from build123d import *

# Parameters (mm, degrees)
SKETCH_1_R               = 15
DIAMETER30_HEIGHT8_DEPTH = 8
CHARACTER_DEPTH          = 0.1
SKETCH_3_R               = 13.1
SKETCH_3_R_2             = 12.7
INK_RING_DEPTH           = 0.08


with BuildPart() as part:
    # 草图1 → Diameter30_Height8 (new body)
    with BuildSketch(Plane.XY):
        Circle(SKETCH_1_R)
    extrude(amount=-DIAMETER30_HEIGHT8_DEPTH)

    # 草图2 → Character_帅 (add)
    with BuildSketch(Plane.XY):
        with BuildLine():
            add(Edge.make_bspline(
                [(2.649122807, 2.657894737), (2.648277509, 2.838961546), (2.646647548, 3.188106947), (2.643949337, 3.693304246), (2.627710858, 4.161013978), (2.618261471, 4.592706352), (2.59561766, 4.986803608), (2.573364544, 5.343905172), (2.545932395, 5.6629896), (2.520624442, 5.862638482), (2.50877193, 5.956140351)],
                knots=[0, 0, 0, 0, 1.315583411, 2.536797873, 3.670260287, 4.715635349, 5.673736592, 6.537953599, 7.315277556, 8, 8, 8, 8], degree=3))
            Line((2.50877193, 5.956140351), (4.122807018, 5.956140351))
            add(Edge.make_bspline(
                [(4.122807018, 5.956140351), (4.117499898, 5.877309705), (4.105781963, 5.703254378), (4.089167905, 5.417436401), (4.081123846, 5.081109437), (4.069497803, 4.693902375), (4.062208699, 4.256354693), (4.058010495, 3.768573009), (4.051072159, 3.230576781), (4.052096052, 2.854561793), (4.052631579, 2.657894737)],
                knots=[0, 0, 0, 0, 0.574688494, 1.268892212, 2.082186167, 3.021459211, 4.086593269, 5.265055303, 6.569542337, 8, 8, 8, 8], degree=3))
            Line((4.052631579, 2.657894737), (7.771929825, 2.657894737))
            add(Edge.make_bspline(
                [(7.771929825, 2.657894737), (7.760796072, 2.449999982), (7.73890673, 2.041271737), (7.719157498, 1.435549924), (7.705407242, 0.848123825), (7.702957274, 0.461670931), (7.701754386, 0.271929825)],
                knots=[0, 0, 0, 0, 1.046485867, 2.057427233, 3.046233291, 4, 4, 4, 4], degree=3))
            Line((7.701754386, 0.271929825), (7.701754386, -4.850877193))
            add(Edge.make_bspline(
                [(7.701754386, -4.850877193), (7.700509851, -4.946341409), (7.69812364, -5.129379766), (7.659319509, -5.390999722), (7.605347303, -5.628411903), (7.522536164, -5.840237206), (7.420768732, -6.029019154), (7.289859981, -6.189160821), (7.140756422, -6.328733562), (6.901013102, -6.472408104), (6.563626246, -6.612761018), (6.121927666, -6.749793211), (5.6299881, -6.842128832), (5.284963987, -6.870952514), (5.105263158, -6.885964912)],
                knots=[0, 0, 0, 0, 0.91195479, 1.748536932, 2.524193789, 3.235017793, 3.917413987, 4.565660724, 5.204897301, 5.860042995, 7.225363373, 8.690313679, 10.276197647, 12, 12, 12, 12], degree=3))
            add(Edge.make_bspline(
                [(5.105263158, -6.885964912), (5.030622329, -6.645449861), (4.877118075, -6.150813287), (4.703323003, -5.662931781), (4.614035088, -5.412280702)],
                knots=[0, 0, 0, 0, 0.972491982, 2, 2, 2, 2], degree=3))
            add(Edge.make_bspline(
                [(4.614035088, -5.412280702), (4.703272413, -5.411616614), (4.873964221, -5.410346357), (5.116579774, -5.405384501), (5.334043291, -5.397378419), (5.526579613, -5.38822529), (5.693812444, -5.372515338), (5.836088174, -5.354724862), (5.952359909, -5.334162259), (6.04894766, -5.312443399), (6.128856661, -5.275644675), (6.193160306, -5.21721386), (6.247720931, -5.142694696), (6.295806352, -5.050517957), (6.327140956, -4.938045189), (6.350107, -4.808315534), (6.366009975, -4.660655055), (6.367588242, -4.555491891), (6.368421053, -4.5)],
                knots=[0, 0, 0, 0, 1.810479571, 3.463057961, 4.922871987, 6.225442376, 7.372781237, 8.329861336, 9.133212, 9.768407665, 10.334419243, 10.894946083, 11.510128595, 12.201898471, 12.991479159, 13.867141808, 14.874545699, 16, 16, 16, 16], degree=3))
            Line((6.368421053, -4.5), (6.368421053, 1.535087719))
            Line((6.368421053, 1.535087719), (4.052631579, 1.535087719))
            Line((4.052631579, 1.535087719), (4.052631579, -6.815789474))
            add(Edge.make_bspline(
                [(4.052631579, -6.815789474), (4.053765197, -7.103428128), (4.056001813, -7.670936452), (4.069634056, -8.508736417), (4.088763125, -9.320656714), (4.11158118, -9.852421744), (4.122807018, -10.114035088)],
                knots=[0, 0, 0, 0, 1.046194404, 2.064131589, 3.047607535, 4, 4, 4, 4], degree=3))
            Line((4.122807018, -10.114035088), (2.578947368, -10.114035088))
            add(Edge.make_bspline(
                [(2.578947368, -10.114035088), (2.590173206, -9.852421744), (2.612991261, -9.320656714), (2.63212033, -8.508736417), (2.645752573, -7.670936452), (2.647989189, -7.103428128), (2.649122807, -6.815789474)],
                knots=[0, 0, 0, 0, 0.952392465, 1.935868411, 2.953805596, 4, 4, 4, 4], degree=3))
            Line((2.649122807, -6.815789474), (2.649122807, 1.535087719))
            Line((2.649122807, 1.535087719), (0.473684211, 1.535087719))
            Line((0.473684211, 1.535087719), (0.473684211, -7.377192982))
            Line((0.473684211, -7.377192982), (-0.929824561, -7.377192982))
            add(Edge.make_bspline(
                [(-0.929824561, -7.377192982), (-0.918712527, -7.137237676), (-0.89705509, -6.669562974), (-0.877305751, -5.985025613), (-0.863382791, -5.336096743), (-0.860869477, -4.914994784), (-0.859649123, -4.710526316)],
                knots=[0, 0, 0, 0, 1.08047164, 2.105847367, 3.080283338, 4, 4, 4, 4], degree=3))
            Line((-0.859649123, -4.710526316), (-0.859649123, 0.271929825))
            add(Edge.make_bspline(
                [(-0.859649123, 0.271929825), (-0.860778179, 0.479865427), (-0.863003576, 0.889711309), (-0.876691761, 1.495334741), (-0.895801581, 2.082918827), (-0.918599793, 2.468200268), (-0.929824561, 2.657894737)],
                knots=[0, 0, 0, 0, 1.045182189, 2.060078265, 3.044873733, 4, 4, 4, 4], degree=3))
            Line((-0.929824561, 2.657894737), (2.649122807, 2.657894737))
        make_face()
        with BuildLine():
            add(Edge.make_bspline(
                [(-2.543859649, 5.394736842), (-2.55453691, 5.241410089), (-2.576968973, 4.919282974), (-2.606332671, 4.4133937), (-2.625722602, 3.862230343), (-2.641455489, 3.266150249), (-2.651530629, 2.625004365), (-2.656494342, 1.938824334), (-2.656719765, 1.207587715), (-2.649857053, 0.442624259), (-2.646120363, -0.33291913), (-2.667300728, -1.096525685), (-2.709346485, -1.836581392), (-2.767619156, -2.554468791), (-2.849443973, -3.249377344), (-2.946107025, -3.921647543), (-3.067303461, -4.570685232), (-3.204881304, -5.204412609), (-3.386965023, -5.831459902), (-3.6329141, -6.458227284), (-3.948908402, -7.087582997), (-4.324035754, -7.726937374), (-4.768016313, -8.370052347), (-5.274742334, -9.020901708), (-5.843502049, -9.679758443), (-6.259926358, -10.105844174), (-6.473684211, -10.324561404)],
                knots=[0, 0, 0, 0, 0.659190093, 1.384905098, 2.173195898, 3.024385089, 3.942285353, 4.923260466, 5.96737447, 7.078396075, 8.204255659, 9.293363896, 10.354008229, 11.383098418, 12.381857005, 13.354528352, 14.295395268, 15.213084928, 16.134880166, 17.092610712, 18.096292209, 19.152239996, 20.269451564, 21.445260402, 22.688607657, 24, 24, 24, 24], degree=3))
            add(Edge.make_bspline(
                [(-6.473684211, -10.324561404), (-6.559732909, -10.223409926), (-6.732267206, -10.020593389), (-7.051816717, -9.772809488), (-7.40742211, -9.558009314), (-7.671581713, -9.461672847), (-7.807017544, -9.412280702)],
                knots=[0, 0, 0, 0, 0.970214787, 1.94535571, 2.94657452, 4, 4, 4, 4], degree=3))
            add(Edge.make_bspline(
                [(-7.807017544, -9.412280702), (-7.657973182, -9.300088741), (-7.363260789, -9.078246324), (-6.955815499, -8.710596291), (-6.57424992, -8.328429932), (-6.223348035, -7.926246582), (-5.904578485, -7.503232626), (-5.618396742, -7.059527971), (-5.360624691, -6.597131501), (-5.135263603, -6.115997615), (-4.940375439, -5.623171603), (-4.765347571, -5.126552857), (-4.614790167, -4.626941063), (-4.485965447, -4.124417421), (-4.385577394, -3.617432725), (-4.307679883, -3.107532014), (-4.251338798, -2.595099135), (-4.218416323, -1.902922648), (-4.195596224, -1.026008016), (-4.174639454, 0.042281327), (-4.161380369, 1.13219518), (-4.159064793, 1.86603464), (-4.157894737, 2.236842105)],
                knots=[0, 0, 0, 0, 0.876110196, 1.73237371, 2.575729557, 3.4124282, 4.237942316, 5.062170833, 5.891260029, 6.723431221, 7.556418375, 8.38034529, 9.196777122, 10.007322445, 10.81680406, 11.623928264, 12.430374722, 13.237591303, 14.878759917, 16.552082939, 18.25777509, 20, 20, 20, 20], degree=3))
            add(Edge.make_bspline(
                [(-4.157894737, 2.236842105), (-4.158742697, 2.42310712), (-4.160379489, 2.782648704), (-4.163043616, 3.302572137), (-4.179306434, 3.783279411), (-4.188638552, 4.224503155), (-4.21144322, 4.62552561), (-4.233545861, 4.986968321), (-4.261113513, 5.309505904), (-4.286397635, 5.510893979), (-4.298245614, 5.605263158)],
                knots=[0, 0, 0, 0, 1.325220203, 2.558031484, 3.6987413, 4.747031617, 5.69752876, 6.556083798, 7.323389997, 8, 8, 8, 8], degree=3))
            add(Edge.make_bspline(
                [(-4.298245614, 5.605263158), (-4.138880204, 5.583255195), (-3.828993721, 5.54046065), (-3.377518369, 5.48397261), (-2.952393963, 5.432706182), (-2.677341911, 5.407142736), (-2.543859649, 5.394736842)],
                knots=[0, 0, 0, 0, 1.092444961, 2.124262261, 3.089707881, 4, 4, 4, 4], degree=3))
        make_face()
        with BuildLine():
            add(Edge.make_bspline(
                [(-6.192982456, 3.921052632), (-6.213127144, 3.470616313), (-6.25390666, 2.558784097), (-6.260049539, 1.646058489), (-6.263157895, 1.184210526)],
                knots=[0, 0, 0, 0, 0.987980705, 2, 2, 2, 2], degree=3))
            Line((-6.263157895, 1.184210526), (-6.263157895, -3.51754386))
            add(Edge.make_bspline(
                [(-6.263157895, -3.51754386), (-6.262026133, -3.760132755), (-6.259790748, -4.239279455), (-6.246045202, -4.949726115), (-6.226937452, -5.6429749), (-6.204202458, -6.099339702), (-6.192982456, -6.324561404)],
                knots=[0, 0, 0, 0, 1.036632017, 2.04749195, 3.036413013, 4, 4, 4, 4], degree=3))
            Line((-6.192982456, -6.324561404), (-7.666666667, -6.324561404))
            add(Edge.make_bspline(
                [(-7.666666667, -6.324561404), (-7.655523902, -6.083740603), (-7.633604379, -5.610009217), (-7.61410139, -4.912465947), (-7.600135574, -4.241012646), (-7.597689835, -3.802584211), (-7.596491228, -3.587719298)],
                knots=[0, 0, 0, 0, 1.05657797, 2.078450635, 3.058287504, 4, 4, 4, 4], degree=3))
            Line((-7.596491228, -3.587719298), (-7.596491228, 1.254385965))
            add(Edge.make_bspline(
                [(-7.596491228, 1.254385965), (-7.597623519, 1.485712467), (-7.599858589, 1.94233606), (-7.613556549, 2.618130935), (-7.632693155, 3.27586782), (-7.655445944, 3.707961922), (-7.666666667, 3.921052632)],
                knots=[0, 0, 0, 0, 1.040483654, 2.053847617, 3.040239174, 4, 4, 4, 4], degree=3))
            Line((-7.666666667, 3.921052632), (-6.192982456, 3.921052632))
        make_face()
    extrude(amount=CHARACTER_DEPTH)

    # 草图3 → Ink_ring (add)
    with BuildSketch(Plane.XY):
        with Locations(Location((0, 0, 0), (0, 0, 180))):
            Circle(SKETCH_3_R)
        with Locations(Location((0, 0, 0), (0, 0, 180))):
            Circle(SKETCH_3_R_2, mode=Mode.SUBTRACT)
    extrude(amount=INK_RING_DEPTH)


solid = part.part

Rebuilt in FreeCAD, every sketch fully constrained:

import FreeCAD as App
import Part
import Sketcher

doc = App.newDocument("Part")
body = doc.addObject("PartDesign::Body", "Body")

# Sketch on XY plane
sketch1 = doc.addObject("Sketcher::SketchObject", "Sketch")
body.addObject(sketch1)
sketch1.AttachmentSupport = (doc.XY_Plane, [""])
sketch1.MapMode = "FlatFace"
sketch1.addGeometry(Part.Circle(App.Vector(0, 0, 0), App.Vector(0, 0, 1), 15), False)
sketch1.addConstraint([
    Sketcher.Constraint("Coincident", 0, 3, -1, 1),
    Sketcher.Constraint("Diameter", 0, 30.0),
])
pad1 = doc.addObject("PartDesign::Pad", "Pad")
body.addObject(pad1)
pad1.Profile = sketch1
pad1.Length = 8
pad1.Reversed = True

# Sketch on XY plane
sketch2 = doc.addObject("Sketcher::SketchObject", "Sketch001")
body.addObject(sketch2)
sketch2.AttachmentSupport = (doc.XY_Plane, [""])
sketch2.MapMode = "FlatFace"
sketch2.addGeometry([
    Part.BSplineCurve([App.Vector(2.649123, 2.657895, 0), App.Vector(2.648278, 2.838962, 0), App.Vector(2.646648, 3.188107, 0), App.Vector(2.643949, 3.693304, 0), App.Vector(2.627711, 4.161014, 0), App.Vector(2.618261, 4.592706, 0), App.Vector(2.595618, 4.986804, 0), App.Vector(2.573365, 5.343905, 0), App.Vector(2.545932, 5.66299, 0), App.Vector(2.520624, 5.862638, 0), App.Vector(2.508772, 5.95614, 0)], [4, 1, 1, 1, 1, 1, 1, 1, 4], [0, 1.315583411, 2.536797873, 3.670260287, 4.715635349, 5.673736592, 6.537953599, 7.315277556, 8], False, 3, [1, 1, 1, 1, 1, 1, 1, 1, 1, 1, 1], False),  # 0
    Part.LineSegment(App.Vector(2.649123, 2.657895, 0), App.Vector(-0.929825, 2.657895, 0)),  # 1
    Part.BSplineCurve([App.Vector(-0.859649, 0.27193, 0), App.Vector(-0.860778, 0.479865, 0), App.Vector(-0.863004, 0.889711, 0), App.Vector(-0.876692, 1.495335, 0), App.Vector(-0.895802, 2.082919, 0), App.Vector(-0.9186, 2.4682, 0), App.Vector(-0.929825, 2.657895, 0)], [4, 1, 1, 1, 4], [0, 1.045182189, 2.060078265, 3.044873733, 4], False, 3, [1, 1, 1, 1, 1, 1, 1], False),  # 2
    Part.LineSegment(App.Vector(-0.859649, 0.27193, 0), App.Vector(-0.859649, -4.710526, 0)),  # 3
    Part.BSplineCurve([App.Vector(-0.929825, -7.377193, 0), App.Vector(-0.918713, -7.137238, 0), App.Vector(-0.897055, -6.669563, 0), App.Vector(-0.877306, -5.985026, 0), App.Vector(-0.863383, -5.336097, 0), App.Vector(-0.860869, -4.914995, 0), App.Vector(-0.859649, -4.710526, 0)], [4, 1, 1, 1, 4], [0, 1.08047164, 2.105847367, 3.080283338, 4], False, 3, [1, 1, 1, 1, 1, 1, 1], False),  # 4
    Part.LineSegment(App.Vector(-0.929825, -7.377193, 0), App.Vector(0.473684, -7.377193, 0)),  # 5
    Part.LineSegment(App.Vector(0.473684, -7.377193, 0), App.Vector(0.473684, 1.535088, 0)),  # 6
    Part.LineSegment(App.Vector(0.473684, 1.535088, 0), App.Vector(2.649123, 1.535088, 0)),  # 7
    Part.LineSegment(App.Vector(2.649123, 1.535088, 0), App.Vector(2.649123, -6.815789, 0)),  # 8
    Part.BSplineCurve([App.Vector(2.578947, -10.114035, 0), App.Vector(2.590173, -9.852422, 0), App.Vector(2.612991, -9.320657, 0), App.Vector(2.63212, -8.508736, 0), App.Vector(2.645753, -7.670936, 0), App.Vector(2.647989, -7.103428, 0), App.Vector(2.649123, -6.815789, 0)], [4, 1, 1, 1, 4], [0, 0.952392465, 1.935868411, 2.953805596, 4], False, 3, [1, 1, 1, 1, 1, 1, 1], False),  # 9
    Part.LineSegment(App.Vector(2.578947, -10.114035, 0), App.Vector(4.122807, -10.114035, 0)),  # 10
    Part.BSplineCurve([App.Vector(4.052632, -6.815789, 0), App.Vector(4.053765, -7.103428, 0), App.Vector(4.056002, -7.670936, 0), App.Vector(4.069634, -8.508736, 0), App.Vector(4.088763, -9.320657, 0), App.Vector(4.111581, -9.852422, 0), App.Vector(4.122807, -10.114035, 0)], [4, 1, 1, 1, 4], [0, 1.046194404, 2.064131589, 3.047607535, 4], False, 3, [1, 1, 1, 1, 1, 1, 1], False),  # 11
    Part.LineSegment(App.Vector(4.052632, -6.815789, 0), App.Vector(4.052632, 1.535088, 0)),  # 12
    Part.LineSegment(App.Vector(4.052632, 1.535088, 0), App.Vector(6.368421, 1.535088, 0)),  # 13
    Part.LineSegment(App.Vector(6.368421, 1.535088, 0), App.Vector(6.368421, -4.5, 0)),  # 14
    Part.BSplineCurve([App.Vector(4.614035, -5.412281, 0), App.Vector(4.703272, -5.411617, 0), App.Vector(4.873964, -5.410346, 0), App.Vector(5.11658, -5.405385, 0), App.Vector(5.334043, -5.397378, 0), App.Vector(5.52658, -5.388225, 0), App.Vector(5.693812, -5.372515, 0), App.Vector(5.836088, -5.354725, 0), App.Vector(5.95236, -5.334162, 0), App.Vector(6.048948, -5.312443, 0), App.Vector(6.128857, -5.275645, 0), App.Vector(6.19316, -5.217214, 0), App.Vector(6.247721, -5.142695, 0), App.Vector(6.295806, -5.050518, 0), App.Vector(6.327141, -4.938045, 0), App.Vector(6.350107, -4.808316, 0), App.Vector(6.36601, -4.660655, 0), App.Vector(6.367588, -4.555492, 0), App.Vector(6.368421, -4.5, 0)], [4, 1, 1, 1, 1, 1, 1, 1, 1, 1, 1, 1, 1, 1, 1, 1, 4], [0, 1.810479571, 3.463057961, 4.922871987, 6.225442376, 7.372781237, 8.329861336, 9.133212, 9.768407665, 10.334419243, 10.894946083, 11.510128595, 12.201898471, 12.991479159, 13.867141808, 14.874545699, 16], False, 3, [1, 1, 1, 1, 1, 1, 1, 1, 1, 1, 1, 1, 1, 1, 1, 1, 1, 1, 1], False),  # 15
    Part.BSplineCurve([App.Vector(5.105263, -6.885965, 0), App.Vector(5.030622, -6.64545, 0), App.Vector(4.877118, -6.150813, 0), App.Vector(4.703323, -5.662932, 0), App.Vector(4.614035, -5.412281, 0)], [4, 1, 4], [0, 0.972491982, 2], False, 3, [1, 1, 1, 1, 1], False),  # 16
    Part.BSplineCurve([App.Vector(7.701754, -4.850877, 0), App.Vector(7.70051, -4.946341, 0), App.Vector(7.698124, -5.12938, 0), App.Vector(7.65932, -5.391, 0), App.Vector(7.605347, -5.628412, 0), App.Vector(7.522536, -5.840237, 0), App.Vector(7.420769, -6.029019, 0), App.Vector(7.28986, -6.189161, 0), App.Vector(7.140756, -6.328734, 0), App.Vector(6.901013, -6.472408, 0), App.Vector(6.563626, -6.612761, 0), App.Vector(6.121928, -6.749793, 0), App.Vector(5.629988, -6.842129, 0), App.Vector(5.284964, -6.870953, 0), App.Vector(5.105263, -6.885965, 0)], [4, 1, 1, 1, 1, 1, 1, 1, 1, 1, 1, 1, 4], [0, 0.91195479, 1.748536932, 2.524193789, 3.235017793, 3.917413987, 4.565660724, 5.204897301, 5.860042995, 7.225363373, 8.690313679, 10.276197647, 12], False, 3, [1, 1, 1, 1, 1, 1, 1, 1, 1, 1, 1, 1, 1, 1, 1], False),  # 17
    Part.LineSegment(App.Vector(7.701754, -4.850877, 0), App.Vector(7.701754, 0.27193, 0)),  # 18
    Part.BSplineCurve([App.Vector(7.77193, 2.657895, 0), App.Vector(7.760796, 2.45, 0), App.Vector(7.738907, 2.041272, 0), App.Vector(7.719157, 1.43555, 0), App.Vector(7.705407, 0.848124, 0), App.Vector(7.702957, 0.461671, 0), App.Vector(7.701754, 0.27193, 0)], [4, 1, 1, 1, 4], [0, 1.046485867, 2.057427233, 3.046233291, 4], False, 3, [1, 1, 1, 1, 1, 1, 1], False),  # 19
    Part.LineSegment(App.Vector(7.77193, 2.657895, 0), App.Vector(4.052632, 2.657895, 0)),  # 20
    Part.BSplineCurve([App.Vector(4.122807, 5.95614, 0), App.Vector(4.1175, 5.87731, 0), App.Vector(4.105782, 5.703254, 0), App.Vector(4.089168, 5.417436, 0), App.Vector(4.081124, 5.081109, 0), App.Vector(4.069498, 4.693902, 0), App.Vector(4.062209, 4.256355, 0), App.Vector(4.05801, 3.768573, 0), App.Vector(4.051072, 3.230577, 0), App.Vector(4.052096, 2.854562, 0), App.Vector(4.052632, 2.657895, 0)], [4, 1, 1, 1, 1, 1, 1, 1, 4], [0, 0.574688494, 1.268892212, 2.082186167, 3.021459211, 4.086593269, 5.265055303, 6.569542337, 8], False, 3, [1, 1, 1, 1, 1, 1, 1, 1, 1, 1, 1], False),  # 21
    Part.LineSegment(App.Vector(4.122807, 5.95614, 0), App.Vector(2.508772, 5.95614, 0)),  # 22
    Part.BSplineCurve([App.Vector(-2.54386, 5.394737, 0), App.Vector(-2.554537, 5.24141, 0), App.Vector(-2.576969, 4.919283, 0), App.Vector(-2.606333, 4.413394, 0), App.Vector(-2.625723, 3.86223, 0), App.Vector(-2.641455, 3.26615, 0), App.Vector(-2.651531, 2.625004, 0), App.Vector(-2.656494, 1.938824, 0), App.Vector(-2.65672, 1.207588, 0), App.Vector(-2.649857, 0.442624, 0), App.Vector(-2.64612, -0.332919, 0), App.Vector(-2.667301, -1.096526, 0), App.Vector(-2.709346, -1.836581, 0), App.Vector(-2.767619, -2.554469, 0), App.Vector(-2.849444, -3.249377, 0), App.Vector(-2.946107, -3.921648, 0), App.Vector(-3.067303, -4.570685, 0), App.Vector(-3.204881, -5.204413, 0), App.Vector(-3.386965, -5.83146, 0), App.Vector(-3.632914, -6.458227, 0), App.Vector(-3.948908, -7.087583, 0), App.Vector(-4.324036, -7.726937, 0), App.Vector(-4.768016, -8.370052, 0), App.Vector(-5.274742, -9.020902, 0), App.Vector(-5.843502, -9.679758, 0), App.Vector(-6.259926, -10.105844, 0), App.Vector(-6.473684, -10.324561, 0)], [4, 1, 1, 1, 1, 1, 1, 1, 1, 1, 1, 1, 1, 1, 1, 1, 1, 1, 1, 1, 1, 1, 1, 1, 4], [0, 0.659190093, 1.384905098, 2.173195898, 3.024385089, 3.942285353, 4.923260466, 5.96737447, 7.078396075, 8.204255659, 9.293363896, 10.354008229, 11.383098418, 12.381857005, 13.354528352, 14.295395268, 15.213084928, 16.134880166, 17.092610712, 18.096292209, 19.152239996, 20.269451564, 21.445260402, 22.688607657, 24], False, 3, [1, 1, 1, 1, 1, 1, 1, 1, 1, 1, 1, 1, 1, 1, 1, 1, 1, 1, 1, 1, 1, 1, 1, 1, 1, 1, 1], False),  # 23
    Part.BSplineCurve([App.Vector(-4.298246, 5.605263, 0), App.Vector(-4.13888, 5.583255, 0), App.Vector(-3.828994, 5.540461, 0), App.Vector(-3.377518, 5.483973, 0), App.Vector(-2.952394, 5.432706, 0), App.Vector(-2.677342, 5.407143, 0), App.Vector(-2.54386, 5.394737, 0)], [4, 1, 1, 1, 4], [0, 1.092444961, 2.124262261, 3.089707881, 4], False, 3, [1, 1, 1, 1, 1, 1, 1], False),  # 24
    Part.BSplineCurve([App.Vector(-4.157895, 2.236842, 0), App.Vector(-4.158743, 2.423107, 0), App.Vector(-4.160379, 2.782649, 0), App.Vector(-4.163044, 3.302572, 0), App.Vector(-4.179306, 3.783279, 0), App.Vector(-4.188639, 4.224503, 0), App.Vector(-4.211443, 4.625526, 0), App.Vector(-4.233546, 4.986968, 0), App.Vector(-4.261114, 5.309506, 0), App.Vector(-4.286398, 5.510894, 0), App.Vector(-4.298246, 5.605263, 0)], [4, 1, 1, 1, 1, 1, 1, 1, 4], [0, 1.325220203, 2.558031484, 3.6987413, 4.747031617, 5.69752876, 6.556083798, 7.323389997, 8], False, 3, [1, 1, 1, 1, 1, 1, 1, 1, 1, 1, 1], False),  # 25
    Part.BSplineCurve([App.Vector(-7.807018, -9.412281, 0), App.Vector(-7.657973, -9.300089, 0), App.Vector(-7.363261, -9.078246, 0), App.Vector(-6.955815, -8.710596, 0), App.Vector(-6.57425, -8.32843, 0), App.Vector(-6.223348, -7.926247, 0), App.Vector(-5.904578, -7.503233, 0), App.Vector(-5.618397, -7.059528, 0), App.Vector(-5.360625, -6.597132, 0), App.Vector(-5.135264, -6.115998, 0), App.Vector(-4.940375, -5.623172, 0), App.Vector(-4.765348, -5.126553, 0), App.Vector(-4.61479, -4.626941, 0), App.Vector(-4.485965, -4.124417, 0), App.Vector(-4.385577, -3.617433, 0), App.Vector(-4.30768, -3.107532, 0), App.Vector(-4.251339, -2.595099, 0), App.Vector(-4.218416, -1.902923, 0), App.Vector(-4.195596, -1.026008, 0), App.Vector(-4.174639, 0.042281, 0), App.Vector(-4.16138, 1.132195, 0), App.Vector(-4.159065, 1.866035, 0), App.Vector(-4.157895, 2.236842, 0)], [4, 1, 1, 1, 1, 1, 1, 1, 1, 1, 1, 1, 1, 1, 1, 1, 1, 1, 1, 1, 4], [0, 0.876110196, 1.73237371, 2.575729557, 3.4124282, 4.237942316, 5.062170833, 5.891260029, 6.723431221, 7.556418375, 8.38034529, 9.196777122, 10.007322445, 10.81680406, 11.623928264, 12.430374722, 13.237591303, 14.878759917, 16.552082939, 18.25777509, 20], False, 3, [1, 1, 1, 1, 1, 1, 1, 1, 1, 1, 1, 1, 1, 1, 1, 1, 1, 1, 1, 1, 1, 1, 1], False),  # 26
    Part.BSplineCurve([App.Vector(-6.473684, -10.324561, 0), App.Vector(-6.559733, -10.22341, 0), App.Vector(-6.732267, -10.020593, 0), App.Vector(-7.051817, -9.772809, 0), App.Vector(-7.407422, -9.558009, 0), App.Vector(-7.671582, -9.461673, 0), App.Vector(-7.807018, -9.412281, 0)], [4, 1, 1, 1, 4], [0, 0.970214787, 1.94535571, 2.94657452, 4], False, 3, [1, 1, 1, 1, 1, 1, 1], False),  # 27
    Part.BSplineCurve([App.Vector(-6.192982, 3.921053, 0), App.Vector(-6.213127, 3.470616, 0), App.Vector(-6.253907, 2.558784, 0), App.Vector(-6.26005, 1.646058, 0), App.Vector(-6.263158, 1.184211, 0)], [4, 1, 4], [0, 0.987980705, 2], False, 3, [1, 1, 1, 1, 1], False),  # 28
    Part.LineSegment(App.Vector(-6.192982, 3.921053, 0), App.Vector(-7.666667, 3.921053, 0)),  # 29
    Part.BSplineCurve([App.Vector(-7.596491, 1.254386, 0), App.Vector(-7.597624, 1.485712, 0), App.Vector(-7.599859, 1.942336, 0), App.Vector(-7.613557, 2.618131, 0), App.Vector(-7.632693, 3.275868, 0), App.Vector(-7.655446, 3.707962, 0), App.Vector(-7.666667, 3.921053, 0)], [4, 1, 1, 1, 4], [0, 1.040483654, 2.053847617, 3.040239174, 4], False, 3, [1, 1, 1, 1, 1, 1, 1], False),  # 30
    Part.LineSegment(App.Vector(-7.596491, 1.254386, 0), App.Vector(-7.596491, -3.587719, 0)),  # 31
    Part.BSplineCurve([App.Vector(-7.666667, -6.324561, 0), App.Vector(-7.655524, -6.083741, 0), App.Vector(-7.633604, -5.610009, 0), App.Vector(-7.614101, -4.912466, 0), App.Vector(-7.600136, -4.241013, 0), App.Vector(-7.59769, -3.802584, 0), App.Vector(-7.596491, -3.587719, 0)], [4, 1, 1, 1, 4], [0, 1.05657797, 2.078450635, 3.058287504, 4], False, 3, [1, 1, 1, 1, 1, 1, 1], False),  # 32
    Part.LineSegment(App.Vector(-7.666667, -6.324561, 0), App.Vector(-6.192982, -6.324561, 0)),  # 33
    Part.BSplineCurve([App.Vector(-6.263158, -3.517544, 0), App.Vector(-6.262026, -3.760133, 0), App.Vector(-6.259791, -4.239279, 0), App.Vector(-6.246045, -4.949726, 0), App.Vector(-6.226937, -5.642975, 0), App.Vector(-6.204202, -6.09934, 0), App.Vector(-6.192982, -6.324561, 0)], [4, 1, 1, 1, 4], [0, 1.036632017, 2.04749195, 3.036413013, 4], False, 3, [1, 1, 1, 1, 1, 1, 1], False),  # 34
    Part.LineSegment(App.Vector(-6.263158, -3.517544, 0), App.Vector(-6.263158, 1.184211, 0)),  # 35
], False)
sketch2.addConstraint([
    Sketcher.Constraint("Block", 0),
    Sketcher.Constraint("Block", 2),
    Sketcher.Constraint("Block", 4),
    Sketcher.Constraint("Block", 9),
    Sketcher.Constraint("Block", 11),
    Sketcher.Constraint("Block", 15),
    Sketcher.Constraint("Block", 16),
    Sketcher.Constraint("Block", 17),
    Sketcher.Constraint("Block", 19),
    Sketcher.Constraint("Block", 21),
    Sketcher.Constraint("Block", 23),
    Sketcher.Constraint("Block", 24),
    Sketcher.Constraint("Block", 25),
    Sketcher.Constraint("Block", 26),
    Sketcher.Constraint("Block", 27),
    Sketcher.Constraint("Block", 28),
    Sketcher.Constraint("Block", 30),
    Sketcher.Constraint("Block", 32),
    Sketcher.Constraint("Block", 34),
    Sketcher.Constraint("Coincident", 0, 1, 1, 1),
    Sketcher.Constraint("Coincident", 1, 2, 2, 2),
    Sketcher.Constraint("Coincident", 2, 1, 3, 1),
    Sketcher.Constraint("Coincident", 3, 2, 4, 2),
    Sketcher.Constraint("Coincident", 4, 1, 5, 1),
    Sketcher.Constraint("Coincident", 5, 2, 6, 1),
    Sketcher.Constraint("Coincident", 6, 2, 7, 1),
    Sketcher.Constraint("Coincident", 7, 2, 8, 1),
    Sketcher.Constraint("Coincident", 8, 2, 9, 2),
    Sketcher.Constraint("Coincident", 9, 1, 10, 1),
    Sketcher.Constraint("Coincident", 10, 2, 11, 2),
    Sketcher.Constraint("Coincident", 11, 1, 12, 1),
    Sketcher.Constraint("Coincident", 12, 2, 13, 1),
    Sketcher.Constraint("Coincident", 13, 2, 14, 1),
    Sketcher.Constraint("Coincident", 14, 2, 15, 2),
    Sketcher.Constraint("Coincident", 17, 1, 18, 1),
    Sketcher.Constraint("Coincident", 18, 2, 19, 2),
    Sketcher.Constraint("Coincident", 19, 1, 20, 1),
    Sketcher.Constraint("Coincident", 20, 2, 21, 2),
    Sketcher.Constraint("Coincident", 21, 1, 22, 1),
    Sketcher.Constraint("Coincident", 22, 2, 0, 2),
    Sketcher.Constraint("Coincident", 28, 1, 29, 1),
    Sketcher.Constraint("Coincident", 29, 2, 30, 2),
    Sketcher.Constraint("Coincident", 30, 1, 31, 1),
    Sketcher.Constraint("Coincident", 31, 2, 32, 2),
    Sketcher.Constraint("Coincident", 32, 1, 33, 1),
    Sketcher.Constraint("Coincident", 33, 2, 34, 2),
    Sketcher.Constraint("Coincident", 34, 1, 35, 1),
    Sketcher.Constraint("Coincident", 35, 2, 28, 2),
    Sketcher.Constraint("Horizontal", 5),
    Sketcher.Constraint("Vertical", 6),
    Sketcher.Constraint("Horizontal", 7),
    Sketcher.Constraint("Vertical", 8),
    Sketcher.Constraint("Vertical", 12),
    Sketcher.Constraint("Horizontal", 13),
    Sketcher.Constraint("Vertical", 14),
    Sketcher.Constraint("Horizontal", 7, 2, 12, 2),
    Sketcher.Constraint("DistanceX", 5, 1, 5, 2, 1.403509),
    Sketcher.Constraint("DistanceY", 6, 1, 6, 2, 8.912281),
])
pad2 = doc.addObject("PartDesign::Pad", "Pad001")
body.addObject(pad2)
pad2.Profile = sketch2
pad2.Length = 0.1

# Sketch on XY plane
sketch3 = doc.addObject("Sketcher::SketchObject", "Sketch002")
body.addObject(sketch3)
sketch3.AttachmentSupport = (doc.XY_Plane, [""])
sketch3.MapMode = "FlatFace"
sketch3.addGeometry([
    Part.Circle(App.Vector(0, 0, 0), App.Vector(0, 0, 1), 13),
    Part.Circle(App.Vector(0, 0, 0), App.Vector(0, 0, 1), 13),
], False)
sketch3.addConstraint([
    Sketcher.Constraint("Coincident", 0, 3, -1, 1),
    Sketcher.Constraint("Coincident", 1, 3, -1, 1),
    Sketcher.Constraint("Diameter", 0, 26.2),
    Sketcher.Constraint("Diameter", 1, 25.4),
])
pad3 = doc.addObject("PartDesign::Pad", "Pad002")
body.addObject(pad3)
pad3.Profile = sketch3
pad3.Length = 0.08

doc.recompute()
